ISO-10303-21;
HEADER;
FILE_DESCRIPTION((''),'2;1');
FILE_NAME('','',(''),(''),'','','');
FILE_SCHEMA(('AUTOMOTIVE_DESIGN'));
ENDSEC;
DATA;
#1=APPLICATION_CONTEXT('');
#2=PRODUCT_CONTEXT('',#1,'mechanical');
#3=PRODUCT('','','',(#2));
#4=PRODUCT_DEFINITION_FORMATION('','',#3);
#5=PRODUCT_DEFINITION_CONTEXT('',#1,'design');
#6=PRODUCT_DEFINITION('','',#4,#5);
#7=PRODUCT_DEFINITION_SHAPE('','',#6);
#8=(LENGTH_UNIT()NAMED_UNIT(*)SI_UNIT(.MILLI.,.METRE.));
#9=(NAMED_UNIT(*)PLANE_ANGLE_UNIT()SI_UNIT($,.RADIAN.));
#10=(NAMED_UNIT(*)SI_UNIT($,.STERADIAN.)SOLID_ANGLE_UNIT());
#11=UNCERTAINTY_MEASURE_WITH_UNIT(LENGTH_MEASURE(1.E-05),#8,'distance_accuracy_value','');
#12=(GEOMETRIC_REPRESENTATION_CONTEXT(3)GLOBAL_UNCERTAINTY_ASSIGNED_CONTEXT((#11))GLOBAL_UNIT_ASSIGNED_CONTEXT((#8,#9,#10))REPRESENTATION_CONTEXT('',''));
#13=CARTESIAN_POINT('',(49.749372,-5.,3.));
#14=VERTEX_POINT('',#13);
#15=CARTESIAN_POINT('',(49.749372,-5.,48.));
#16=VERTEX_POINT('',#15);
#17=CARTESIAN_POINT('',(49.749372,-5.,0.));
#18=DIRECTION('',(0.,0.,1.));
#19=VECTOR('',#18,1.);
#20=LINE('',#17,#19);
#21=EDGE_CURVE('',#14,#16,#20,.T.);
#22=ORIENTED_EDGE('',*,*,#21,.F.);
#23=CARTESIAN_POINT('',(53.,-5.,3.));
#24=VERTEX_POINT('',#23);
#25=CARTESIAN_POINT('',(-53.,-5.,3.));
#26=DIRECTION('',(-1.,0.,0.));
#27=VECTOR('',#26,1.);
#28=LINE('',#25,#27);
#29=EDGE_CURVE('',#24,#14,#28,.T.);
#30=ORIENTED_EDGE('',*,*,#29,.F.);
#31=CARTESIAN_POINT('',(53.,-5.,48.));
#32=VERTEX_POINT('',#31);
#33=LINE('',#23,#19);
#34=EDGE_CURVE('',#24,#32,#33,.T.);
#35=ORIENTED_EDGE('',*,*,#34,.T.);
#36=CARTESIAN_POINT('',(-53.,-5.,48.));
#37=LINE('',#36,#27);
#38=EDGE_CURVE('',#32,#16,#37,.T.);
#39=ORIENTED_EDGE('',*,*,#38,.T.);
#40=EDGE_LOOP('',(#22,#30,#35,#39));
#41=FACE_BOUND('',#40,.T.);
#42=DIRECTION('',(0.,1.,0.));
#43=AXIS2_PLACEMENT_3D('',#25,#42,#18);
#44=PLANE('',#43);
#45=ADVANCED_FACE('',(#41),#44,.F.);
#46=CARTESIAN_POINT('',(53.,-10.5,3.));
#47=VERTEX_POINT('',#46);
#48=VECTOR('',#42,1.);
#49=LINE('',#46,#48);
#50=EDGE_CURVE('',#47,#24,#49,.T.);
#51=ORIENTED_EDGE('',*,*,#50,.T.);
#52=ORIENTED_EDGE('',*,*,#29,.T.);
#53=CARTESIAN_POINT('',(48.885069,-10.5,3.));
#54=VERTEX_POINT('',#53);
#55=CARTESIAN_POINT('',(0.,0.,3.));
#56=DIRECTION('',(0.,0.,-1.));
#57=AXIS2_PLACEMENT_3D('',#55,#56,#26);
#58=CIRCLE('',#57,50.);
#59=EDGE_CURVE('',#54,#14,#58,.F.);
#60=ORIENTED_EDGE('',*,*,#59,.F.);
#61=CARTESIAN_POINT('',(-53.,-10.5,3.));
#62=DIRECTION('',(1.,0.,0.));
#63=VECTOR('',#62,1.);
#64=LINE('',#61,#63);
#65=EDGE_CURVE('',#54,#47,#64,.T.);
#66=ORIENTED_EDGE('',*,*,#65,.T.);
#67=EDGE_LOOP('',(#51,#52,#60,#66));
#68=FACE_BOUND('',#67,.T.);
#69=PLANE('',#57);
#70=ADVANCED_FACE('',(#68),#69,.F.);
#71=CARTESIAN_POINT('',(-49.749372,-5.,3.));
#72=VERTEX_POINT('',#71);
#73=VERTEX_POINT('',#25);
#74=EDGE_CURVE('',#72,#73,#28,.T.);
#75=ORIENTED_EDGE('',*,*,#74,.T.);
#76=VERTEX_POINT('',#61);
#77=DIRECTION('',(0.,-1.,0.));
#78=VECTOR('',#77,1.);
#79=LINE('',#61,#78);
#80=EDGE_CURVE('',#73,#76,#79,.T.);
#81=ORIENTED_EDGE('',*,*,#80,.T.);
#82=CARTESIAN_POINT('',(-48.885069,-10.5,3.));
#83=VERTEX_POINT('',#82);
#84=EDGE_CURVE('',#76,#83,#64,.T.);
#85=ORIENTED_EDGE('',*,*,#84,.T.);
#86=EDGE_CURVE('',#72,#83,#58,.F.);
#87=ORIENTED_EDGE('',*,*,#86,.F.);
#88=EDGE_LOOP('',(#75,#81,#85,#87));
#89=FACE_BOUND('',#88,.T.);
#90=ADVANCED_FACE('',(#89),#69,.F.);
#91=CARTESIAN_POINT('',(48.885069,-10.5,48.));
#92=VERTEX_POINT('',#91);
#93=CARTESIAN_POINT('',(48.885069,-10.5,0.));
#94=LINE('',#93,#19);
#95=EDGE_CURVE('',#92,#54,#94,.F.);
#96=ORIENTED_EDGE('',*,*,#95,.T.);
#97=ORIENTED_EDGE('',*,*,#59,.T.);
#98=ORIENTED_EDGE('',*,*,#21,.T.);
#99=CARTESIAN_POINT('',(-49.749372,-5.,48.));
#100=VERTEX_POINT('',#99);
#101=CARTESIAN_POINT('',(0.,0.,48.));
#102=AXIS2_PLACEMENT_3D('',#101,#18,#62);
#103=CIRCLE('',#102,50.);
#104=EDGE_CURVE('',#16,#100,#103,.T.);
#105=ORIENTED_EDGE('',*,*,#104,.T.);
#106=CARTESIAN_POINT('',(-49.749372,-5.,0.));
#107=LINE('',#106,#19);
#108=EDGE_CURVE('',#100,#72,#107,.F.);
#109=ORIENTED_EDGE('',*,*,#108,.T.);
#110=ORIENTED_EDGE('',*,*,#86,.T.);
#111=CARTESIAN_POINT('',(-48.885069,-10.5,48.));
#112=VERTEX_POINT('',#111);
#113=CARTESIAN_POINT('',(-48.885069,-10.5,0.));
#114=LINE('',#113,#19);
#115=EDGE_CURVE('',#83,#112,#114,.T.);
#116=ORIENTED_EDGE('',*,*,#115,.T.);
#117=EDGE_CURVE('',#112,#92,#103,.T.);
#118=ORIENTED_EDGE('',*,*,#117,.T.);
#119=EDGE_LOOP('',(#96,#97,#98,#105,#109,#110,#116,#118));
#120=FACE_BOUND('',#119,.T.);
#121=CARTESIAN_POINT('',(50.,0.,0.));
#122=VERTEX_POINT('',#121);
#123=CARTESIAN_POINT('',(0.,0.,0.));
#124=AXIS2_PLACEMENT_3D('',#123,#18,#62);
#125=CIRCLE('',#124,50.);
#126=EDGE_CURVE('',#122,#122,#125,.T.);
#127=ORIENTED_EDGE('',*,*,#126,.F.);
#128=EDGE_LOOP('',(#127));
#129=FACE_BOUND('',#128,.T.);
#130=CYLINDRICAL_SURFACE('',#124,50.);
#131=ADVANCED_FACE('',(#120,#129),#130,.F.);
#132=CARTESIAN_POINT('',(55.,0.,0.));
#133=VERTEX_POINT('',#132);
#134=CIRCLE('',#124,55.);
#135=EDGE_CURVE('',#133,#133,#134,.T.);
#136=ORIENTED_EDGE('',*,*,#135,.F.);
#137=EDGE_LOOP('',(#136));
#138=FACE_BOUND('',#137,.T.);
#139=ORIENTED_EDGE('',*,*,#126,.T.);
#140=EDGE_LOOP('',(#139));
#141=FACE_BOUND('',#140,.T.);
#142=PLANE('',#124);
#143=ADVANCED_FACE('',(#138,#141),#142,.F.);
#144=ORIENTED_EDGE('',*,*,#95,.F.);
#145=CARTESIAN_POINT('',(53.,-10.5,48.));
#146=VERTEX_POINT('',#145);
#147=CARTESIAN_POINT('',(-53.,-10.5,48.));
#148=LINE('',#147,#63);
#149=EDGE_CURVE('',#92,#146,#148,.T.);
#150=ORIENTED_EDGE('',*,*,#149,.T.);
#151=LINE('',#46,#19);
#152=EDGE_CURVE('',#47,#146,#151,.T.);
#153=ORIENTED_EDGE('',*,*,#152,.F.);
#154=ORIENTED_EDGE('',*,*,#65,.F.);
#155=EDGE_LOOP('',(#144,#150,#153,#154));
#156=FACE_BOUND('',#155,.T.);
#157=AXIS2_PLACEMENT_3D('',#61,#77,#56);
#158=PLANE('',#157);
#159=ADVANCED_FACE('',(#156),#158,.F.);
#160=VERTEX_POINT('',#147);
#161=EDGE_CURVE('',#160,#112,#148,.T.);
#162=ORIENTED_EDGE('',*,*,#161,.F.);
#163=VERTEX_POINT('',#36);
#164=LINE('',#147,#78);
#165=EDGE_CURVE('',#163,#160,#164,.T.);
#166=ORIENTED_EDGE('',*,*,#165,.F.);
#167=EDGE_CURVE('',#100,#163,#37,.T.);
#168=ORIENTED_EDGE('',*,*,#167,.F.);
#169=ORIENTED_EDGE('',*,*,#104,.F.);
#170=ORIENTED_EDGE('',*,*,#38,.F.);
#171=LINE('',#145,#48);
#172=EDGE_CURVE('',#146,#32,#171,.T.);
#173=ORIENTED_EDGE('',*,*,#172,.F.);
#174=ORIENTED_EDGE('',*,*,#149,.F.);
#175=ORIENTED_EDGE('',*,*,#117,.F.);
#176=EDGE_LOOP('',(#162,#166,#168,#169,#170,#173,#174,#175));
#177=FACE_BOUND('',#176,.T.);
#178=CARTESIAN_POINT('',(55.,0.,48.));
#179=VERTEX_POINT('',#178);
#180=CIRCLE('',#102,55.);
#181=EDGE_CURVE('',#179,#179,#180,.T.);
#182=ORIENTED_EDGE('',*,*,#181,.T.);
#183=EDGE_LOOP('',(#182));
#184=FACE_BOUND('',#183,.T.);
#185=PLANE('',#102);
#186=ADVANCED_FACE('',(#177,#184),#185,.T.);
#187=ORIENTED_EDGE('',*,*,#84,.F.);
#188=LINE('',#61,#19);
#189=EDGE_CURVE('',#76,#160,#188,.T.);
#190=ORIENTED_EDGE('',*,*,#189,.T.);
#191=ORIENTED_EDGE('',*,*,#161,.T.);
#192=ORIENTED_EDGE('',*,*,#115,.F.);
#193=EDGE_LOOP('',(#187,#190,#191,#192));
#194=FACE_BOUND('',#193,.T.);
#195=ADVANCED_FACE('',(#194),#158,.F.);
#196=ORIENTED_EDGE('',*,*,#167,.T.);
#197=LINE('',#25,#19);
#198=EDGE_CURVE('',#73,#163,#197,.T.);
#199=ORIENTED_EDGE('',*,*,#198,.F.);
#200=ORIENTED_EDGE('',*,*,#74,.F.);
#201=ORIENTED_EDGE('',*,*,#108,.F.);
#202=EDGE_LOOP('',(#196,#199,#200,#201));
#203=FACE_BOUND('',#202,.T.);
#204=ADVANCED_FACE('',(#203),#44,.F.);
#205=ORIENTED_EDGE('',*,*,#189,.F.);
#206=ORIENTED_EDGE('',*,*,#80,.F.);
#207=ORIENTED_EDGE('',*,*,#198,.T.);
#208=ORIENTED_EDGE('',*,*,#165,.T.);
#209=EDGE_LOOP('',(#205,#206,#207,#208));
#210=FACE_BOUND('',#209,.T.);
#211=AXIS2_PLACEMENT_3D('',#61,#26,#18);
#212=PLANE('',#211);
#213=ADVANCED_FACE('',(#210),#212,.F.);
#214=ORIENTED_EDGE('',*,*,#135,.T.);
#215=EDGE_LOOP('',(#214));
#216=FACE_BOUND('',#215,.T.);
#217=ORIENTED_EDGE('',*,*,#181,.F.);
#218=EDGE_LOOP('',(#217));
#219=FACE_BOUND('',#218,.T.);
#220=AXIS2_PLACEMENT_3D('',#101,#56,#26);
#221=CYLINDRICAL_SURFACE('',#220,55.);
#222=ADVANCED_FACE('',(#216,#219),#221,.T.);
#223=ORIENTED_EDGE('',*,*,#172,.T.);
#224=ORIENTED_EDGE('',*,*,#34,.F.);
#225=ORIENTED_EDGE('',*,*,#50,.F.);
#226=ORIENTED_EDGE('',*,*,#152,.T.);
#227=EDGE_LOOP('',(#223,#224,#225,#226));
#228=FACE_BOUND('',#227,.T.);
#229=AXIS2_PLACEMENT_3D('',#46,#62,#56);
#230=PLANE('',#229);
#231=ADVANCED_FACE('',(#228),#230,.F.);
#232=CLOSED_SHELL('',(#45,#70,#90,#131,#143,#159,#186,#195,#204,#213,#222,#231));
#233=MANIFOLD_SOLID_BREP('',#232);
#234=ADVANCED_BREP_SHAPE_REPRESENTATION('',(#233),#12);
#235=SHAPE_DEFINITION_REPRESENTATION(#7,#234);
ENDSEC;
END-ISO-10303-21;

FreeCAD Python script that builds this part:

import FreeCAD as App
import Part
import Sketcher

V = App.Vector
Q = App.Units.Quantity

doc = App.newDocument("Part")
body = doc.addObject("PartDesign::Body", "Body")

sketch1 = body.newObject("Sketcher::SketchObject", "Sketch")
sketch1.AttachmentSupport = (doc.getObject("XY_Plane"), [""])
sketch1.MapMode = "FlatFace"
sketch1.addGeometry(Part.Circle(V(0, 0, 0), V(0, 0, 1), 55), False)
sketch1.addConstraint([
    Sketcher.Constraint("Coincident", 0, 3, -1, 1),
    Sketcher.Constraint("Diameter", 0, Q("110 mm")),
])
pad1 = body.newObject("PartDesign::Pad", "Pad")
pad1.Profile = sketch1
pad1.Length = 48

sketch2 = body.newObject("Sketcher::SketchObject", "Sketch001")
sketch2.AttachmentSupport = (doc.getObject("XY_Plane"), [""])
sketch2.MapMode = "FlatFace"
sketch2.AttachmentOffset = App.Placement(V(0, 0, 48), App.Rotation())
sketch2.addGeometry(Part.Circle(V(0, 0, 0), V(0, 0, 1), 50), False)
sketch2.addConstraint([
    Sketcher.Constraint("Coincident", 0, 3, -1, 1),
    Sketcher.Constraint("Diameter", 0, Q("100 mm")),
])
pocket1 = body.newObject("PartDesign::Pocket", "Pocket")
pocket1.Profile = sketch2
pocket1.Type = "ThroughAll"

sketch3 = body.newObject("Sketcher::SketchObject", "Sketch002")
sketch3.AttachmentSupport = (doc.getObject("XY_Plane"), [""])
sketch3.MapMode = "FlatFace"
sketch3.AttachmentOffset = App.Placement(V(0, 0, 48), App.Rotation())
sketch3.addGeometry([
    Part.LineSegment(V(-53, -5, 0), V(-53, -10.5, 0)),
    Part.LineSegment(V(-53, -10.5, 0), V(53, -10.5, 0)),
    Part.LineSegment(V(53, -10.5, 0), V(53, -5, 0)),
    Part.LineSegment(V(53, -5, 0), V(-53, -5, 0)),
], False)
sketch3.addConstraint([
    Sketcher.Constraint("Coincident", 0, 2, 1, 1),
    Sketcher.Constraint("Coincident", 1, 2, 2, 1),
    Sketcher.Constraint("Coincident", 2, 2, 3, 1),
    Sketcher.Constraint("Coincident", 3, 2, 0, 1),
    Sketcher.Constraint("Vertical", 0),
    Sketcher.Constraint("Horizontal", 1),
    Sketcher.Constraint("Vertical", 2),
    Sketcher.Constraint("Horizontal", 3),
    Sketcher.Constraint("DistanceX", 1, 1, 1, 2, Q("106 mm")),
    Sketcher.Constraint("DistanceY", 0, 2, 0, 1, Q("5.5 mm")),
    Sketcher.Constraint("DistanceX", 0, 2, -1, 1, Q("53 mm")),
    Sketcher.Constraint("DistanceY", 2, 2, -1, 1, Q("5 mm")),
])
pocket2 = body.newObject("PartDesign::Pocket", "Pocket001")
pocket2.Profile = sketch3
pocket2.Length = 45

doc.recompute()
